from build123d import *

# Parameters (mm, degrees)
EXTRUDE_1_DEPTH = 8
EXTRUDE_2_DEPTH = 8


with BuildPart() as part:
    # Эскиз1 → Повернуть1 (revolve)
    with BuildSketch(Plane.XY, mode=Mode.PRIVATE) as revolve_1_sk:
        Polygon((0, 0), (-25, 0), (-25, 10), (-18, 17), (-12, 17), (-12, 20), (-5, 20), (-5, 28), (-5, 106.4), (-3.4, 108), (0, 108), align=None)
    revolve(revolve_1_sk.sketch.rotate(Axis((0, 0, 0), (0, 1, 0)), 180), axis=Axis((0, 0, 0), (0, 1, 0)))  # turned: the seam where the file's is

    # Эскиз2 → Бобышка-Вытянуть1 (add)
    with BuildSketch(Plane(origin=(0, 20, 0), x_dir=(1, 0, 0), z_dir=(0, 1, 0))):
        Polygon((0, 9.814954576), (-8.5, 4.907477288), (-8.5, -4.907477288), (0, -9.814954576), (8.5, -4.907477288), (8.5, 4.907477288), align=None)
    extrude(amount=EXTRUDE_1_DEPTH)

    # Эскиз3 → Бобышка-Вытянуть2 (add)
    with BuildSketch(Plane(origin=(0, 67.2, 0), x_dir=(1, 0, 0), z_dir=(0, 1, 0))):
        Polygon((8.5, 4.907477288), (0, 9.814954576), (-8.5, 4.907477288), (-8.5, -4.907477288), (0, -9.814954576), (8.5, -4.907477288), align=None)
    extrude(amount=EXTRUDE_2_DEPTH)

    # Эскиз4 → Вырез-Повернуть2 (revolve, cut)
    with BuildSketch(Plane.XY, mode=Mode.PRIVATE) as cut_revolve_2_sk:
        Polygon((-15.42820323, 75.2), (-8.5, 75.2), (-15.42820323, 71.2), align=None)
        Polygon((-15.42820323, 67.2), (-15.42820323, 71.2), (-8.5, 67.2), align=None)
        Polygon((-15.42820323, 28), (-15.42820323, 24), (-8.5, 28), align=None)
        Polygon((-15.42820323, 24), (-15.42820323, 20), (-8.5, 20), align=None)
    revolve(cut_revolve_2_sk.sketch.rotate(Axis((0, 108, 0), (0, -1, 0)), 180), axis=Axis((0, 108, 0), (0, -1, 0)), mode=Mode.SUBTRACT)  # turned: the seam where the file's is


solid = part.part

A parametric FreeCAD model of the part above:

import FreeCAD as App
import Part
import Sketcher
from FreeCAD import Vector
Q = App.Units.Quantity

doc = App.newDocument("Part")
body = doc.addObject("PartDesign::Body", "Body")

sketch1 = body.newObject("Sketcher::SketchObject", "Sketch")
sketch1.AttachmentSupport = (doc.getObject("XY_Plane"), [""])
sketch1.MapMode = "FlatFace"
sketch1.addGeometry(Part.LineSegment(Vector(-25, 0, 0), Vector(0, 0, 0)), False)
sketch1.addGeometry(Part.LineSegment(Vector(0, 0, 0), Vector(0, 108, 0)), False)
sketch1.addGeometry(Part.LineSegment(Vector(0, 108, 0), Vector(-3.4, 108, 0)), False)
sketch1.addGeometry(Part.LineSegment(Vector(-3.4, 108, 0), Vector(-5, 106.4, 0)), False)
sketch1.addGeometry(Part.LineSegment(Vector(-5, 106.4, 0), Vector(-5, 20, 0)), False)
sketch1.addGeometry(Part.LineSegment(Vector(-5, 20, 0), Vector(-12, 20, 0)), False)
sketch1.addGeometry(Part.LineSegment(Vector(-12, 20, 0), Vector(-12, 17, 0)), False)
sketch1.addGeometry(Part.LineSegment(Vector(-12, 17, 0), Vector(-18, 17, 0)), False)
sketch1.addGeometry(Part.LineSegment(Vector(-18, 17, 0), Vector(-25, 10, 0)), False)
sketch1.addGeometry(Part.LineSegment(Vector(-25, 10, 0), Vector(-25, 0, 0)), False)
sketch1.addConstraint(Sketcher.Constraint("Coincident", 0, 2, 1, 1))
sketch1.addConstraint(Sketcher.Constraint("Coincident", 1, 2, 2, 1))
sketch1.addConstraint(Sketcher.Constraint("Coincident", 2, 2, 3, 1))
sketch1.addConstraint(Sketcher.Constraint("Coincident", 3, 2, 4, 1))
sketch1.addConstraint(Sketcher.Constraint("Coincident", 4, 2, 5, 1))
sketch1.addConstraint(Sketcher.Constraint("Coincident", 5, 2, 6, 1))
sketch1.addConstraint(Sketcher.Constraint("Coincident", 6, 2, 7, 1))
sketch1.addConstraint(Sketcher.Constraint("Coincident", 7, 2, 8, 1))
sketch1.addConstraint(Sketcher.Constraint("Coincident", 8, 2, 9, 1))
sketch1.addConstraint(Sketcher.Constraint("Coincident", 9, 2, 0, 1))
sketch1.addConstraint(Sketcher.Constraint("Horizontal", 0))
sketch1.addConstraint(Sketcher.Constraint("Vertical", 1))
sketch1.addConstraint(Sketcher.Constraint("Horizontal", 2))
sketch1.addConstraint(Sketcher.Constraint("Vertical", 4))
sketch1.addConstraint(Sketcher.Constraint("Horizontal", 5))
sketch1.addConstraint(Sketcher.Constraint("Vertical", 6))
sketch1.addConstraint(Sketcher.Constraint("Horizontal", 7))
sketch1.addConstraint(Sketcher.Constraint("Vertical", 9))
sketch1.addConstraint(Sketcher.Constraint("Coincident", 0, 2, -1, 1))
sketch1.addConstraint(Sketcher.Constraint("Parallel", 3, 8))
sketch1.addConstraint(Sketcher.Constraint("DistanceX", 0, 1, 0, 2, Q("25 mm")))
sketch1.addConstraint(Sketcher.Constraint("DistanceX", 5, 2, 5, 1, Q("7 mm")))
sketch1.addConstraint(Sketcher.Constraint("DistanceX", 7, 2, 7, 1, Q("6 mm")))
sketch1.addConstraint(Sketcher.Constraint("DistanceY", 1, 1, 1, 2, Q("108 mm")))
sketch1.addConstraint(Sketcher.Constraint("DistanceY", 6, 2, 6, 1, Q("3 mm")))
sketch1.addConstraint(Sketcher.Constraint("DistanceY", 9, 2, 9, 1, Q("10 mm")))
sketch1.addConstraint(Sketcher.Constraint("Angle", 3, Q("-135 deg")))
sketch1.addConstraint(Sketcher.Constraint("DistanceX", 2, 2, 2, 1, Q("3.4 mm")))
sketch1.addConstraint(Sketcher.Constraint("DistanceX", 3, 2, -1, 1, Q("5 mm")))
revolution = body.newObject("PartDesign::Revolution", "Revolution")
revolution.Profile = sketch1
revolution.ReferenceAxis = (sketch1, ["V_Axis"])
revolution.Angle = 360

sketch2 = body.newObject("Sketcher::SketchObject", "Sketch001")
sketch2.AttachmentSupport = (doc.getObject("XZ_Plane"), [""])
sketch2.MapMode = "FlatFace"
sketch2.AttachmentOffset = App.Placement(Vector(0, 0, -20), App.Rotation())
sketch2.addGeometry(Part.LineSegment(Vector(0, -10, 0), Vector(-8, -5, 0)), False)
sketch2.addGeometry(Part.LineSegment(Vector(-8, -5, 0), Vector(-8, 5, 0)), False)
sketch2.addGeometry(Part.LineSegment(Vector(-8, 5, 0), Vector(0, 10, 0)), False)
sketch2.addGeometry(Part.LineSegment(Vector(0, 10, 0), Vector(8, 5, 0)), False)
sketch2.addGeometry(Part.LineSegment(Vector(8, 5, 0), Vector(8, -5, 0)), False)
sketch2.addGeometry(Part.LineSegment(Vector(8, -5, 0), Vector(0, -10, 0)), False)
sketch2.addConstraint(Sketcher.Constraint("Coincident", 0, 2, 1, 1))
sketch2.addConstraint(Sketcher.Constraint("Coincident", 1, 2, 2, 1))
sketch2.addConstraint(Sketcher.Constraint("Coincident", 2, 2, 3, 1))
sketch2.addConstraint(Sketcher.Constraint("Coincident", 3, 2, 4, 1))
sketch2.addConstraint(Sketcher.Constraint("Coincident", 4, 2, 5, 1))
sketch2.addConstraint(Sketcher.Constraint("Coincident", 5, 2, 0, 1))
sketch2.addConstraint(Sketcher.Constraint("Vertical", 1))
sketch2.addConstraint(Sketcher.Constraint("Vertical", 4))
sketch2.addConstraint(Sketcher.Constraint("Symmetric", 0, 2, 3, 2, -1, 1))
sketch2.addConstraint(Sketcher.Constraint("Symmetric", 2, 2, 5, 2, -1, 1))
sketch2.addConstraint(Sketcher.Constraint("PointOnObject", 2, 2, -2))
sketch2.addConstraint(Sketcher.Constraint("Parallel", 2, 5))
sketch2.addConstraint(Sketcher.Constraint("Horizontal", 1, 2, 3, 2))
sketch2.addConstraint(Sketcher.Constraint("Angle", 0, Q("150 deg")))
sketch2.addConstraint(Sketcher.Constraint("DistanceX", 1, 2, 3, 2, Q("17 mm")))
sketch2.addConstraint(Sketcher.Constraint("DistanceY", 1, 1, 1, 2, Q("9.814955 mm")))
pad1 = body.newObject("PartDesign::Pad", "Pad")
pad1.Profile = sketch2
pad1.Length = 8
pad1.Reversed = True

sketch3 = body.newObject("Sketcher::SketchObject", "Sketch002")
sketch3.AttachmentSupport = (doc.getObject("XZ_Plane"), [""])
sketch3.MapMode = "FlatFace"
sketch3.AttachmentOffset = App.Placement(Vector(0, 0, -67.2), App.Rotation())
sketch3.addGeometry(Part.LineSegment(Vector(8, -5, 0), Vector(0, -10, 0)), False)
sketch3.addGeometry(Part.LineSegment(Vector(0, -10, 0), Vector(-8, -5, 0)), False)
sketch3.addGeometry(Part.LineSegment(Vector(-8, -5, 0), Vector(-8, 5, 0)), False)
sketch3.addGeometry(Part.LineSegment(Vector(-8, 5, 0), Vector(0, 10, 0)), False)
sketch3.addGeometry(Part.LineSegment(Vector(0, 10, 0), Vector(8, 5, 0)), False)
sketch3.addGeometry(Part.LineSegment(Vector(8, 5, 0), Vector(8, -5, 0)), False)
sketch3.addConstraint(Sketcher.Constraint("Coincident", 0, 2, 1, 1))
sketch3.addConstraint(Sketcher.Constraint("Coincident", 1, 2, 2, 1))
sketch3.addConstraint(Sketcher.Constraint("Coincident", 2, 2, 3, 1))
sketch3.addConstraint(Sketcher.Constraint("Coincident", 3, 2, 4, 1))
sketch3.addConstraint(Sketcher.Constraint("Coincident", 4, 2, 5, 1))
sketch3.addConstraint(Sketcher.Constraint("Coincident", 5, 2, 0, 1))
sketch3.addConstraint(Sketcher.Constraint("Vertical", 2))
sketch3.addConstraint(Sketcher.Constraint("Vertical", 5))
sketch3.addConstraint(Sketcher.Constraint("Symmetric", 0, 2, 3, 2, -1, 1))
sketch3.addConstraint(Sketcher.Constraint("Symmetric", 1, 2, 4, 2, -1, 1))
sketch3.addConstraint(Sketcher.Constraint("PointOnObject", 0, 2, -2))
sketch3.addConstraint(Sketcher.Constraint("Parallel", 0, 3))
sketch3.addConstraint(Sketcher.Constraint("Horizontal", 2, 2, 4, 2))
sketch3.addConstraint(Sketcher.Constraint("Angle", 0, Q("-150 deg")))
sketch3.addConstraint(Sketcher.Constraint("DistanceX", 2, 2, 4, 2, Q("17 mm")))
sketch3.addConstraint(Sketcher.Constraint("DistanceY", 2, 1, 2, 2, Q("9.814955 mm")))
pad2 = body.newObject("PartDesign::Pad", "Pad001")
pad2.Profile = sketch3
pad2.Length = 8
pad2.Reversed = True

sketch4 = body.newObject("Sketcher::SketchObject", "Sketch003")
sketch4.AttachmentSupport = (doc.getObject("XY_Plane"), [""])
sketch4.MapMode = "FlatFace"
sketch4.addGeometry(Part.LineSegment(Vector(-8.5, 75.2, 0), Vector(-15.4, 75.2, 0)), False)
sketch4.addGeometry(Part.LineSegment(Vector(-15.4, 75.2, 0), Vector(-15.4, 71.2, 0)), False)
sketch4.addGeometry(Part.LineSegment(Vector(-15.4, 71.2, 0), Vector(-8.5, 75.2, 0)), False)
sketch4.addGeometry(Part.LineSegment(Vector(-15.4, 71.2, 0), Vector(-15.4, 67.2, 0)), False)
sketch4.addGeometry(Part.LineSegment(Vector(-15.4, 67.2, 0), Vector(-8.5, 67.2, 0)), False)
sketch4.addGeometry(Part.LineSegment(Vector(-8.5, 67.2, 0), Vector(-15.4, 71.2, 0)), False)
sketch4.addGeometry(Part.LineSegment(Vector(-15.4, 28, 0), Vector(-15.4, 24, 0)), False)
sketch4.addGeometry(Part.LineSegment(Vector(-15.4, 24, 0), Vector(-8.5, 28, 0)), False)
sketch4.addGeometry(Part.LineSegment(Vector(-8.5, 28, 0), Vector(-15.4, 28, 0)), False)
sketch4.addGeometry(Part.LineSegment(Vector(-15.4, 24, 0), Vector(-15.4, 20, 0)), False)
sketch4.addGeometry(Part.LineSegment(Vector(-15.4, 20, 0), Vector(-8.5, 20, 0)), False)
sketch4.addGeometry(Part.LineSegment(Vector(-8.5, 20, 0), Vector(-15.4, 24, 0)), False)
sketch4.addConstraint(Sketcher.Constraint("Coincident", 0, 2, 1, 1))
sketch4.addConstraint(Sketcher.Constraint("Coincident", 1, 2, 2, 1))
sketch4.addConstraint(Sketcher.Constraint("Coincident", 2, 2, 0, 1))
sketch4.addConstraint(Sketcher.Constraint("Coincident", 3, 2, 4, 1))
sketch4.addConstraint(Sketcher.Constraint("Coincident", 4, 2, 5, 1))
sketch4.addConstraint(Sketcher.Constraint("Coincident", 5, 2, 3, 1))
sketch4.addConstraint(Sketcher.Constraint("Coincident", 6, 2, 7, 1))
sketch4.addConstraint(Sketcher.Constraint("Coincident", 7, 2, 8, 1))
sketch4.addConstraint(Sketcher.Constraint("Coincident", 8, 2, 6, 1))
sketch4.addConstraint(Sketcher.Constraint("Coincident", 9, 2, 10, 1))
sketch4.addConstraint(Sketcher.Constraint("Coincident", 10, 2, 11, 1))
sketch4.addConstraint(Sketcher.Constraint("Coincident", 11, 2, 9, 1))
sketch4.addConstraint(Sketcher.Constraint("Horizontal", 0))
sketch4.addConstraint(Sketcher.Constraint("Vertical", 1))
sketch4.addConstraint(Sketcher.Constraint("Vertical", 3))
sketch4.addConstraint(Sketcher.Constraint("Horizontal", 4))
sketch4.addConstraint(Sketcher.Constraint("Vertical", 6))
sketch4.addConstraint(Sketcher.Constraint("Horizontal", 8))
sketch4.addConstraint(Sketcher.Constraint("Vertical", 9))
sketch4.addConstraint(Sketcher.Constraint("Horizontal", 10))
sketch4.addConstraint(Sketcher.Constraint("Coincident", 5, 2, 1, 2))
sketch4.addConstraint(Sketcher.Constraint("Coincident", 11, 2, 6, 2))
sketch4.addConstraint(Sketcher.Constraint("Parallel", 2, 7))
sketch4.addConstraint(Sketcher.Constraint("Parallel", 5, 11))
sketch4.addConstraint(Sketcher.Constraint("Vertical", 2, 2, 4, 2))
sketch4.addConstraint(Sketcher.Constraint("Vertical", 5, 2, 6, 2))
sketch4.addConstraint(Sketcher.Constraint("Vertical", 4, 2, 7, 2))
sketch4.addConstraint(Sketcher.Constraint("Vertical", 7, 2, 10, 2))
sketch4.addConstraint(Sketcher.Constraint("Equal", 1, 3))
sketch4.addConstraint(Sketcher.Constraint("DistanceY", 1, 2, 1, 1, Q("4 mm")))
sketch4.addConstraint(Sketcher.Constraint("Angle", 2, Q("30 deg")))
sketch4.addConstraint(Sketcher.Constraint("DistanceY", -1, 1, 6, 2, Q("24 mm")))
sketch4.addConstraint(Sketcher.Constraint("DistanceY", -1, 1, 0, 2, Q("75.2 mm")))
sketch4.addConstraint(Sketcher.Constraint("DistanceX", 2, 2, -1, 1, Q("8.5 mm")))
groove = body.newObject("PartDesign::Groove", "Groove")
groove.Profile = sketch4
groove.ReferenceAxis = (sketch4, ["V_Axis"])
groove.Angle = 360

doc.recompute()
